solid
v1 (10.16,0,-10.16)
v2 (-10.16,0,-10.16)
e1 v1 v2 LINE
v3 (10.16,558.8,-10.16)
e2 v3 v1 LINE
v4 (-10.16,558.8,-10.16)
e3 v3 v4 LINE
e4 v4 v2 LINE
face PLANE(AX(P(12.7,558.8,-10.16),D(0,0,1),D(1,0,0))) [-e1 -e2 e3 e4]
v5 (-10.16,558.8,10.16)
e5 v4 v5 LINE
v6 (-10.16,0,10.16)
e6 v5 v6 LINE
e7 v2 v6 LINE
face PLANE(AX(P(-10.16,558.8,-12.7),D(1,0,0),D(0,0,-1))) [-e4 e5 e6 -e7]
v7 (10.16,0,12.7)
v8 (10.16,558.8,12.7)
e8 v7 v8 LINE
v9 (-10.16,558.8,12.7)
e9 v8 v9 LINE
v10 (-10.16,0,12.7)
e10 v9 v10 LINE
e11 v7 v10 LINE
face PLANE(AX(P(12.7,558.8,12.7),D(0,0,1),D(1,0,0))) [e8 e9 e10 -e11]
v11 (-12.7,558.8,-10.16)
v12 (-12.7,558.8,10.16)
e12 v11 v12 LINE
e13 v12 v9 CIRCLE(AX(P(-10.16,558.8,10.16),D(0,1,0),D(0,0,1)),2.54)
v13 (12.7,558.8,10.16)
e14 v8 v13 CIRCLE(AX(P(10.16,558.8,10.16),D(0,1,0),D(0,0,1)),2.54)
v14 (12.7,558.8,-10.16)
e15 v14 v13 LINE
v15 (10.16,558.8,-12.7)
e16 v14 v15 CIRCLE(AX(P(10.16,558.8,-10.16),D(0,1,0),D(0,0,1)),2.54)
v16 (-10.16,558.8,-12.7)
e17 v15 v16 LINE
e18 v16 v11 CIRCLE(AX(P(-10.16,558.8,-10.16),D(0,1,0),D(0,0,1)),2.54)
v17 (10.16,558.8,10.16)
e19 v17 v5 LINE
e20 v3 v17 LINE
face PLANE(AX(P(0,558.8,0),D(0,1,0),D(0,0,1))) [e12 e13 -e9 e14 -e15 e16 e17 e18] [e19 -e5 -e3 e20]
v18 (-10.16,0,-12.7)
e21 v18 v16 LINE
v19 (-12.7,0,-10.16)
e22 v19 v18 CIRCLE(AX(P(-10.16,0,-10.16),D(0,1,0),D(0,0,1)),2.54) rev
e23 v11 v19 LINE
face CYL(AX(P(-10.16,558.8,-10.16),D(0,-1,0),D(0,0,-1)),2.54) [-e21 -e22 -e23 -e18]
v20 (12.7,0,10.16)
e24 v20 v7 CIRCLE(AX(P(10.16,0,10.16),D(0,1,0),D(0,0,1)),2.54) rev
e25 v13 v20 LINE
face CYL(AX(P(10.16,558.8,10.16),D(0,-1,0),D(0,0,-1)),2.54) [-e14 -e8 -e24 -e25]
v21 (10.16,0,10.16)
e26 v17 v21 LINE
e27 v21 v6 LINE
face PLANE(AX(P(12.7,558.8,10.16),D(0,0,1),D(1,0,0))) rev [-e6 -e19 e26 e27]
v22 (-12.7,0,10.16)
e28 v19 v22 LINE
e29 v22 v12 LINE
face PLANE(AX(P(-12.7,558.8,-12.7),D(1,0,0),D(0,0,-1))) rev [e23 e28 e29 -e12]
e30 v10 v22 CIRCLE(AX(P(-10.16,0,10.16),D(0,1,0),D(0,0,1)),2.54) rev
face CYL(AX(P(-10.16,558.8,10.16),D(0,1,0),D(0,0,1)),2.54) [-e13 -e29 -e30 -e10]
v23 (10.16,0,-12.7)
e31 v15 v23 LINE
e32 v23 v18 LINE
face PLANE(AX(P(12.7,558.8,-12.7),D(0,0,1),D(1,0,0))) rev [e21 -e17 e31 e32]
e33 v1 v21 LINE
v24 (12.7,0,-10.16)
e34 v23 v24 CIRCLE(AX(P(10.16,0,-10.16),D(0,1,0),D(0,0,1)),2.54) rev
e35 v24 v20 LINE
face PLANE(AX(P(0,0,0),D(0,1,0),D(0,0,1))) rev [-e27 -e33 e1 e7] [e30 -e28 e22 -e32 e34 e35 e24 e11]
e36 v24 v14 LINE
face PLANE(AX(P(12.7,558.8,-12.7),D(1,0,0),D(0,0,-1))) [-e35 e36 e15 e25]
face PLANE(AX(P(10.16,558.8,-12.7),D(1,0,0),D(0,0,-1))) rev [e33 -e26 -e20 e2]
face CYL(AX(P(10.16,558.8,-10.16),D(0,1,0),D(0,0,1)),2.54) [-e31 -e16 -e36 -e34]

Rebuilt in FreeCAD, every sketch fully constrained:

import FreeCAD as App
import Part
import Sketcher
Q = App.Units.Quantity


def edges_at(feature, points):
    """Names of the edges that pass closest to the given points."""
    edges = feature.Shape.Edges
    near = lambda p: min(range(len(edges)), key=lambda i: edges[i].distToShape(Part.Vertex(*p))[0])
    return sorted({f"Edge{near(p) + 1}" for p in points})


def faces_at(feature, points):
    """Names of the faces that lie closest to the given points."""
    faces = feature.Shape.Faces
    near = lambda p: min(range(len(faces)), key=lambda i: faces[i].distToShape(Part.Vertex(*p))[0])
    return sorted({f"Face{near(p) + 1}" for p in points})

doc = App.newDocument("Part")
body = doc.addObject("PartDesign::Body", "Body")

# Sketch on XZ plane
sketch1 = body.newObject("Sketcher::SketchObject", "Sketch")
sketch1.AttachmentSupport = (doc.getObject("XZ_Plane"), [""])
sketch1.MapMode = "FlatFace"
sketch1.addGeometry(Part.LineSegment(App.Vector(-12.7, -12.7, 0), App.Vector(-12.7, 12.7, 0)), False)
sketch1.addGeometry(Part.LineSegment(App.Vector(-12.7, 12.7, 0), App.Vector(12.7, 12.7, 0)), False)
sketch1.addGeometry(Part.LineSegment(App.Vector(12.7, 12.7, 0), App.Vector(12.7, -12.7, 0)), False)
sketch1.addGeometry(Part.LineSegment(App.Vector(12.7, -12.7, 0), App.Vector(-12.7, -12.7, 0)), False)
sketch1.addConstraint(Sketcher.Constraint("Coincident", 0, 2, 1, 1))
sketch1.addConstraint(Sketcher.Constraint("Coincident", 1, 2, 2, 1))
sketch1.addConstraint(Sketcher.Constraint("Coincident", 2, 2, 3, 1))
sketch1.addConstraint(Sketcher.Constraint("Coincident", 3, 2, 0, 1))
sketch1.addConstraint(Sketcher.Constraint("Vertical", 0))
sketch1.addConstraint(Sketcher.Constraint("Horizontal", 1))
sketch1.addConstraint(Sketcher.Constraint("Vertical", 2))
sketch1.addConstraint(Sketcher.Constraint("Horizontal", 3))
sketch1.addConstraint(Sketcher.Constraint("Symmetric", 0, 2, 2, 2, -1, 1))
sketch1.addConstraint(Sketcher.Constraint("Equal", 3, 0))
sketch1.addConstraint(Sketcher.Constraint("DistanceX", 1, 1, 1, 2, Q("1 in")))
pad1 = body.newObject("PartDesign::Pad", "Pad")
pad1.Profile = sketch1
pad1.Length = Q("22 in")
pad1.Reversed = True
doc.recompute()

thickness = body.newObject("PartDesign::Thickness", "Thickness")
thickness.Base = (pad1, faces_at(pad1, [(0, 558.8, 0), (0, 0, 0)]))
thickness.Value = Q("0.1 in")
thickness.Reversed = True
thickness.Join = "Intersection"
doc.recompute()

fillet = body.newObject("PartDesign::Fillet", "Fillet")
fillet.Base = (thickness, edges_at(thickness, [
    (12.7, 279.4, -12.7),
    (12.7, 279.4, 12.7),
    (-12.7, 279.4, 12.7),
    (-12.7, 279.4, -12.7),
]))
fillet.Radius = Q("0.1 in")

doc.recompute()
